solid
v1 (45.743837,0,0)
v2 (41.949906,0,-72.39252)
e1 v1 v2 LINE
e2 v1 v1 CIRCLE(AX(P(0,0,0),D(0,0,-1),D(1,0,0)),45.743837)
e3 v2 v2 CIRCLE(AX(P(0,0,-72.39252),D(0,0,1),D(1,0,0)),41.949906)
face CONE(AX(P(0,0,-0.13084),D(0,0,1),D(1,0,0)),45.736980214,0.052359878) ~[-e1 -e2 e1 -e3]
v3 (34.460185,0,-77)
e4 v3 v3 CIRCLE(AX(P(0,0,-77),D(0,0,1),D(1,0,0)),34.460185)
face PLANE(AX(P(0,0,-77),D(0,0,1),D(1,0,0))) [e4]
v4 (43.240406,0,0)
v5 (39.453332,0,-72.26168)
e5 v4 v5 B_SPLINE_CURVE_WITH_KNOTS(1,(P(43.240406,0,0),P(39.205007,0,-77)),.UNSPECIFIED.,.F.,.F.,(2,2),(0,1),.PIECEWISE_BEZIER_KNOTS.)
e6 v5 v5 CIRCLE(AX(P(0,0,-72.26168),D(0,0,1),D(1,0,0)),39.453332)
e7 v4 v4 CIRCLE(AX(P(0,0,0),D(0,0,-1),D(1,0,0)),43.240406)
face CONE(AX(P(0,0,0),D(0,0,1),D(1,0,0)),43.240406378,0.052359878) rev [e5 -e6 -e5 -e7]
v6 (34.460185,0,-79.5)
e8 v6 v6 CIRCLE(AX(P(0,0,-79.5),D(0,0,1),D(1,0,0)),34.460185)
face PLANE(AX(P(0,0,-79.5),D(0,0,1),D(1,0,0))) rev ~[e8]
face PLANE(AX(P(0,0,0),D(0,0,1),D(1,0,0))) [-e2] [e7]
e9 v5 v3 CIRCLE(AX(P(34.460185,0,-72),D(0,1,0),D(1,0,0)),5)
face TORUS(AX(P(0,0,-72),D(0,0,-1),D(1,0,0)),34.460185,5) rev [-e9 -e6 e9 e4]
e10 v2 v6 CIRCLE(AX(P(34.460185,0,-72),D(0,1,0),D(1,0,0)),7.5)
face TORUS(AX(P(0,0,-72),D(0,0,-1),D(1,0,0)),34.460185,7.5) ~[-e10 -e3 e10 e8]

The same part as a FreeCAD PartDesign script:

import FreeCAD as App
import Part
import Sketcher
from FreeCAD import Vector


def edges_at(feature, points):
    """Names of the edges that pass closest to the given points."""
    edges = feature.Shape.Edges
    near = lambda p: min(range(len(edges)), key=lambda i: edges[i].distToShape(Part.Vertex(*p))[0])
    return sorted({f"Edge{near(p) + 1}" for p in points})


def faces_at(feature, points):
    """Names of the faces that lie closest to the given points."""
    faces = feature.Shape.Faces
    near = lambda p: min(range(len(faces)), key=lambda i: faces[i].distToShape(Part.Vertex(*p))[0])
    return sorted({f"Face{near(p) + 1}" for p in points})

doc = App.newDocument("Part")
body = doc.addObject("PartDesign::Body", "Body")

# Sketch on XY plane
sketch1 = doc.addObject("Sketcher::SketchObject", "Sketch")
body.addObject(sketch1)
sketch1.AttachmentSupport = (doc.XY_Plane, [""])
sketch1.MapMode = "FlatFace"
sketch1.addGeometry(Part.Circle(Vector(0, 0, 0), Vector(0, 0, 1), 43.240406), False)
sketch1.addConstraint([
    Sketcher.Constraint("Coincident", 0, 3, -1, 1),
    Sketcher.Constraint("Diameter", 0, 86.480813),
])
pad1 = doc.addObject("PartDesign::Pad", "Pad")
body.addObject(pad1)
pad1.Profile = sketch1
pad1.Length = 77
pad1.Reversed = True
pad1.TaperAngle = -3
doc.recompute()

fillet = doc.addObject("PartDesign::Fillet", "Fillet")
body.addObject(fillet)
fillet.Base = (pad1, edges_at(pad1, [(-39.205, 0, -77)]))
fillet.Radius = 5
doc.recompute()

thickness = doc.addObject("PartDesign::Thickness", "Thickness")
body.addObject(thickness)
thickness.Base = (fillet, faces_at(fillet, [(0, 0, 0)]))
thickness.Value = 2.5
thickness.Reversed = False
thickness.Join = "Intersection"

doc.recompute()
